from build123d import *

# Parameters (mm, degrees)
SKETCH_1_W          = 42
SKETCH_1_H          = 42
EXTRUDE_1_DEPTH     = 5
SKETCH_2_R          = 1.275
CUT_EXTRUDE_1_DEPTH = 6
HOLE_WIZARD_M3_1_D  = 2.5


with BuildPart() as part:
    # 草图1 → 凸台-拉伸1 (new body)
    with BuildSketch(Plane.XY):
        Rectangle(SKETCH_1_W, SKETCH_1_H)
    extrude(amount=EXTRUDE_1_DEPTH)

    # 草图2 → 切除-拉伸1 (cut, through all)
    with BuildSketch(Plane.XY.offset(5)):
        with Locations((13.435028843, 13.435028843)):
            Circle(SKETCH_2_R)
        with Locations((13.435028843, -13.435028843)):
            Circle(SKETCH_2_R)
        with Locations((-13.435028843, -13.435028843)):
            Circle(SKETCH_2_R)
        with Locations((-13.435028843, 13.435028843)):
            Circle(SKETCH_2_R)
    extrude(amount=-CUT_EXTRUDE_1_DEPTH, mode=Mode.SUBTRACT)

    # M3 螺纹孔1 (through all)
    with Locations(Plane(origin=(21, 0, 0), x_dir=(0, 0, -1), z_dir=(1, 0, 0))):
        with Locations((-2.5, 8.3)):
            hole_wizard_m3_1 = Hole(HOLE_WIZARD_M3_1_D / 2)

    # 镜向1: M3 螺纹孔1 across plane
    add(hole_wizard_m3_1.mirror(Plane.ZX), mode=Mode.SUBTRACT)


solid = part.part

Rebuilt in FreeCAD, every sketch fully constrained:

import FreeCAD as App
import Part
import Sketcher
from FreeCAD import Vector
Q = App.Units.Quantity

doc = App.newDocument("Part")
body = doc.addObject("PartDesign::Body", "Body")

# Sketch on XY plane
sketch1 = doc.addObject("Sketcher::SketchObject", "Sketch")
body.addObject(sketch1)
sketch1.AttachmentSupport = (doc.XY_Plane, [""])
sketch1.MapMode = "FlatFace"
sketch1.addGeometry(Part.LineSegment(Vector(-21, 21, 0), Vector(-21, -21, 0)), False)
sketch1.addGeometry(Part.LineSegment(Vector(-21, -21, 0), Vector(21, -21, 0)), False)
sketch1.addGeometry(Part.LineSegment(Vector(21, -21, 0), Vector(21, 21, 0)), False)
sketch1.addGeometry(Part.LineSegment(Vector(21, 21, 0), Vector(-21, 21, 0)), False)
sketch1.addConstraint(Sketcher.Constraint("Coincident", 0, 2, 1, 1))
sketch1.addConstraint(Sketcher.Constraint("Coincident", 1, 2, 2, 1))
sketch1.addConstraint(Sketcher.Constraint("Coincident", 2, 2, 3, 1))
sketch1.addConstraint(Sketcher.Constraint("Coincident", 3, 2, 0, 1))
sketch1.addConstraint(Sketcher.Constraint("Vertical", 0))
sketch1.addConstraint(Sketcher.Constraint("Horizontal", 1))
sketch1.addConstraint(Sketcher.Constraint("Vertical", 2))
sketch1.addConstraint(Sketcher.Constraint("Horizontal", 3))
sketch1.addConstraint(Sketcher.Constraint("Symmetric", 0, 2, 2, 2, -1, 1))
sketch1.addConstraint(Sketcher.Constraint("Equal", 3, 0))
sketch1.addConstraint(Sketcher.Constraint("DistanceX", 1, 1, 1, 2, Q("42 mm")))
pad1 = doc.addObject("PartDesign::Pad", "Pad")
body.addObject(pad1)
pad1.Profile = sketch1
pad1.Length = 5

# Sketch on XY plane
sketch2 = doc.addObject("Sketcher::SketchObject", "Sketch001")
body.addObject(sketch2)
sketch2.AttachmentSupport = (doc.XY_Plane, [""])
sketch2.MapMode = "FlatFace"
sketch2.AttachmentOffset = App.Placement(Vector(0, 0, 5), App.Rotation())
sketch2.addGeometry(Part.Circle(Vector(13.4, 13.4, 0), Vector(0, 0, 1), 1.3), False)
sketch2.addGeometry(Part.Circle(Vector(13.4, -13.4, 0), Vector(0, 0, 1), 1.3), False)
sketch2.addGeometry(Part.Circle(Vector(-13.4, -13.4, 0), Vector(0, 0, 1), 1.3), False)
sketch2.addGeometry(Part.Circle(Vector(-13.4, 13.4, 0), Vector(0, 0, 1), 1.3), False)
sketch2.addConstraint(Sketcher.Constraint("Equal", 0, 1))
sketch2.addConstraint(Sketcher.Constraint("Equal", 1, 2))
sketch2.addConstraint(Sketcher.Constraint("Equal", 2, 3))
sketch2.addConstraint(Sketcher.Constraint("Symmetric", 0, 3, 2, 3, -1, 1))
sketch2.addConstraint(Sketcher.Constraint("Symmetric", 1, 3, 3, 3, -1, 1))
sketch2.addConstraint(Sketcher.Constraint("Symmetric", 1, 3, 2, 3, -2))
sketch2.addConstraint(Sketcher.Constraint("Diameter", 0, Q("2.55 mm")))
sketch2.addConstraint(Sketcher.Constraint("DistanceX", -1, 1, 0, 3, Q("13.435029 mm")))
sketch2.addConstraint(Sketcher.Constraint("DistanceY", -1, 1, 0, 3, Q("13.435029 mm")))
pocket1 = doc.addObject("PartDesign::Pocket", "Pocket")
body.addObject(pocket1)
pocket1.Profile = sketch2
pocket1.Type = "ThroughAll"

# Sketch on YZ plane
sketch3 = doc.addObject("Sketcher::SketchObject", "Sketch002")
body.addObject(sketch3)
sketch3.AttachmentSupport = (doc.YZ_Plane, [""])
sketch3.MapMode = "FlatFace"
sketch3.AttachmentOffset = App.Placement(Vector(0, 0, 21), App.Rotation())
sketch3.addGeometry(Part.Circle(Vector(8.3, 2.5, 0), Vector(0, 0, 1), 1.2), False)
sketch3.addConstraint(Sketcher.Constraint("Diameter", 0, Q("2.5 mm")))
sketch3.addConstraint(Sketcher.Constraint("DistanceX", -1, 1, 0, 3, Q("8.3 mm")))
sketch3.addConstraint(Sketcher.Constraint("DistanceY", -1, 1, 0, 3, Q("2.5 mm")))
doc.recompute()
hole = doc.addObject("PartDesign::Hole", "Hole")
body.addObject(hole)
hole.Profile = sketch3
hole.ThreadType = "None"
hole.Diameter = 2.5
hole.DepthType = "ThroughAll"
doc.recompute()

mirrored = doc.addObject("PartDesign::Mirrored", "Mirrored")
body.addObject(mirrored)
mirrored.Originals = [hole]
mirrored.MirrorPlane = (doc.XZ_Plane, [""])
body.Tip = mirrored

doc.recompute()
